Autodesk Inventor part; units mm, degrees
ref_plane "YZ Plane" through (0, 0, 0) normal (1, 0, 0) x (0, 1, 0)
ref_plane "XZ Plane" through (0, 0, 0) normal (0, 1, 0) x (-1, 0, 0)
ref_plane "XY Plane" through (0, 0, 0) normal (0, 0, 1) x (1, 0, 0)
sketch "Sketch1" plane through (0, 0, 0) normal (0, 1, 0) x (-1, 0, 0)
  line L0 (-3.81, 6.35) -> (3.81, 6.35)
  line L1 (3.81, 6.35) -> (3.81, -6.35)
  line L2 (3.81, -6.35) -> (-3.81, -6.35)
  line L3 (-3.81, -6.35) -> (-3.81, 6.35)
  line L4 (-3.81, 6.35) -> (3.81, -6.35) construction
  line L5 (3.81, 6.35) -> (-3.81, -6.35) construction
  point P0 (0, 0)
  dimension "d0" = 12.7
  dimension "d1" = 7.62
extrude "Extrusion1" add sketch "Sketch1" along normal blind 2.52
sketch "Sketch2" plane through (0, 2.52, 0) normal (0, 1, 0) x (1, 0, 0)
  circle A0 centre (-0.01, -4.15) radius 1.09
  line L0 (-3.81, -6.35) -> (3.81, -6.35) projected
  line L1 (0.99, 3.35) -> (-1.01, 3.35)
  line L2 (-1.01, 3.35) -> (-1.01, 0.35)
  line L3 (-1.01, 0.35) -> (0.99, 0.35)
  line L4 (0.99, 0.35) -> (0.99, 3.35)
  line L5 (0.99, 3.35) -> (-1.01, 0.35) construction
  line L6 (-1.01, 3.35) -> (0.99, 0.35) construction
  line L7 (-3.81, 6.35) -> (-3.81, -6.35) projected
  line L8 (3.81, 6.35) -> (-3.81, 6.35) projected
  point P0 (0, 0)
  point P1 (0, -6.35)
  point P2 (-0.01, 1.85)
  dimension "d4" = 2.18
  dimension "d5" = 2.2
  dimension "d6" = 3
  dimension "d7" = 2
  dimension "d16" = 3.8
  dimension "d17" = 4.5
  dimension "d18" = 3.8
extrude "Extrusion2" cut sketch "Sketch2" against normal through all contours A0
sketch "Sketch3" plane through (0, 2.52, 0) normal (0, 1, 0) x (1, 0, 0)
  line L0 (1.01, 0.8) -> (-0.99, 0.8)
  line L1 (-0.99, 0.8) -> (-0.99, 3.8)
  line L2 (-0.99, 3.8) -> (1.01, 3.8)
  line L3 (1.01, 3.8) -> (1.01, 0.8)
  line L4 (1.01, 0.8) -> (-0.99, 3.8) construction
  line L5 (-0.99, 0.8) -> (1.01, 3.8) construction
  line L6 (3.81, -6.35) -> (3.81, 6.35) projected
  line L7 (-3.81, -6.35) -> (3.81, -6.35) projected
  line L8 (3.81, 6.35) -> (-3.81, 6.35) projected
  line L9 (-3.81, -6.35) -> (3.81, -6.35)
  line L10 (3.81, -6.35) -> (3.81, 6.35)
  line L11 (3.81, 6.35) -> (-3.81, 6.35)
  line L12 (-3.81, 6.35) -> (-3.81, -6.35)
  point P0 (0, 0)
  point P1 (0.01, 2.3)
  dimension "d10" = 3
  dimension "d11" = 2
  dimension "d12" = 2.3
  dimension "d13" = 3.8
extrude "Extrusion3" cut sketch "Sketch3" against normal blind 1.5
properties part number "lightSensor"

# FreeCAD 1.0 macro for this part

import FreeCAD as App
import Part
import Sketcher

V = App.Vector
Q = App.Units.Quantity

doc = App.newDocument("Part")
params = doc.addObject("Spreadsheet::Sheet", "Params")
for row, (alias, value) in enumerate([
    ("sketch1_height", "12.7 mm"),
    ("sketch1_width", "7.62 mm"),
    ("pad1_length", "2.52 mm"),
    ("sketch2_diameter", "2.18 mm"),
    ("sketch3_width", "2 mm"),
    ("sketch3_height", "3 mm"),
    ("sketch3_height2", "12.7 mm"),
    ("sketch3_width2", "7.62 mm"),
    ("pocket2_length", "1.5 mm"),
], start=1):
    params.set(f"A{row}", alias)
    params.set(f"B{row}", "=" + value)
    params.setAlias(f"B{row}", alias)

body = doc.addObject("PartDesign::Body", "Body")

sketch1 = body.newObject("Sketcher::SketchObject", "Sketch")
sketch1.AttachmentSupport = (doc.getObject("XZ_Plane"), [""])
sketch1.MapMode = "FlatFace"
sketch1.addGeometry([
    Part.LineSegment(V(-4, 6, 0), V(4, 6, 0)),
    Part.LineSegment(V(4, 6, 0), V(4, -6, 0)),
    Part.LineSegment(V(4, -6, 0), V(-4, -6, 0)),
    Part.LineSegment(V(-4, -6, 0), V(-4, 6, 0)),
], False)
sketch1.addConstraint([
    Sketcher.Constraint("Coincident", 0, 2, 1, 1),
    Sketcher.Constraint("Coincident", 1, 2, 2, 1),
    Sketcher.Constraint("Coincident", 2, 2, 3, 1),
    Sketcher.Constraint("Coincident", 3, 2, 0, 1),
    Sketcher.Constraint("Horizontal", 0),
    Sketcher.Constraint("Vertical", 1),
    Sketcher.Constraint("Horizontal", 2),
    Sketcher.Constraint("Vertical", 3),
    Sketcher.Constraint("Symmetric", 0, 2, 2, 2, -1, 1),
    Sketcher.Constraint("DistanceY", 1, 2, 1, 1, Q("12.7 mm")),
    Sketcher.Constraint("DistanceX", 0, 1, 0, 2, Q("7.62 mm")),
])
sketch1.setExpression("Constraints[9]", "Params.sketch1_height")
sketch1.setExpression("Constraints[10]", "Params.sketch1_width")
pad1 = body.newObject("PartDesign::Pad", "Pad")
pad1.Profile = sketch1
pad1.setExpression("Length", "Params.pad1_length")
pad1.Reversed = True

sketch2 = body.newObject("Sketcher::SketchObject", "Sketch001")
sketch2.AttachmentSupport = (doc.getObject("XZ_Plane"), [""])
sketch2.MapMode = "FlatFace"
sketch2.AttachmentOffset = App.Placement(V(0, 0, -2.52), App.Rotation())
sketch2.addGeometry(Part.Circle(V(0, 4.2, 0), V(0, 0, 1), 1.1), False)
sketch2.addConstraint([
    Sketcher.Constraint("Diameter", 0, Q("2.18 mm")),
    Sketcher.Constraint("DistanceX", 0, 3, -1, 1, Q("0.01 mm")),
    Sketcher.Constraint("DistanceY", -1, 1, 0, 3, Q("4.15 mm")),
])
sketch2.setExpression("Constraints[0]", "Params.sketch2_diameter")
pocket1 = body.newObject("PartDesign::Pocket", "Pocket")
pocket1.Profile = sketch2
pocket1.Type = "ThroughAll"
pocket1.Reversed = True

sketch3 = body.newObject("Sketcher::SketchObject", "Sketch002")
sketch3.AttachmentSupport = (doc.getObject("XZ_Plane"), [""])
sketch3.MapMode = "FlatFace"
sketch3.AttachmentOffset = App.Placement(V(0, 0, -2.52), App.Rotation())
sketch3.addGeometry([
    Part.LineSegment(V(-3.8, 6.3, 0), V(3.8, 6.3, 0)),
    Part.LineSegment(V(3.8, 6.3, 0), V(3.8, -6.3, 0)),
    Part.LineSegment(V(3.8, -6.3, 0), V(-3.8, -6.3, 0)),
    Part.LineSegment(V(-3.8, -6.3, 0), V(-3.8, 6.3, 0)),
    Part.LineSegment(V(1, -3.8, 0), V(1, -0.8, 0)),
    Part.LineSegment(V(1, -0.8, 0), V(-1, -0.8, 0)),
    Part.LineSegment(V(-1, -0.8, 0), V(-1, -3.8, 0)),
    Part.LineSegment(V(-1, -3.8, 0), V(1, -3.8, 0)),
], False)
sketch3.addConstraint([
    Sketcher.Constraint("Coincident", 0, 2, 1, 1),
    Sketcher.Constraint("Coincident", 1, 2, 2, 1),
    Sketcher.Constraint("Coincident", 2, 2, 3, 1),
    Sketcher.Constraint("Coincident", 3, 2, 0, 1),
    Sketcher.Constraint("Coincident", 4, 2, 5, 1),
    Sketcher.Constraint("Coincident", 5, 2, 6, 1),
    Sketcher.Constraint("Coincident", 6, 2, 7, 1),
    Sketcher.Constraint("Coincident", 7, 2, 4, 1),
    Sketcher.Constraint("Horizontal", 0),
    Sketcher.Constraint("Vertical", 1),
    Sketcher.Constraint("Horizontal", 2),
    Sketcher.Constraint("Vertical", 3),
    Sketcher.Constraint("Vertical", 4),
    Sketcher.Constraint("Horizontal", 5),
    Sketcher.Constraint("Vertical", 6),
    Sketcher.Constraint("Horizontal", 7),
    Sketcher.Constraint("Symmetric", 0, 2, 2, 2, -1, 1),
    Sketcher.Constraint("DistanceX", 5, 2, 5, 1, Q("2 mm")),
    Sketcher.Constraint("DistanceY", 4, 1, 4, 2, Q("3 mm")),
    Sketcher.Constraint("DistanceY", 6, 2, -1, 1, Q("3.8 mm")),
    Sketcher.Constraint("DistanceY", 1, 2, 1, 1, Q("12.7 mm")),
    Sketcher.Constraint("DistanceX", 0, 1, 0, 2, Q("7.62 mm")),
    Sketcher.Constraint("DistanceX", 4, 2, 1, 2, Q("2.8 mm")),
])
sketch3.setExpression("Constraints[17]", "Params.sketch3_width")
sketch3.setExpression("Constraints[18]", "Params.sketch3_height")
sketch3.setExpression("Constraints[20]", "Params.sketch3_height2")
sketch3.setExpression("Constraints[21]", "Params.sketch3_width2")
pocket2 = body.newObject("PartDesign::Pocket", "Pocket001")
pocket2.Profile = sketch3
pocket2.setExpression("Length", "Params.pocket2_length")
pocket2.Reversed = True

doc.recompute()
